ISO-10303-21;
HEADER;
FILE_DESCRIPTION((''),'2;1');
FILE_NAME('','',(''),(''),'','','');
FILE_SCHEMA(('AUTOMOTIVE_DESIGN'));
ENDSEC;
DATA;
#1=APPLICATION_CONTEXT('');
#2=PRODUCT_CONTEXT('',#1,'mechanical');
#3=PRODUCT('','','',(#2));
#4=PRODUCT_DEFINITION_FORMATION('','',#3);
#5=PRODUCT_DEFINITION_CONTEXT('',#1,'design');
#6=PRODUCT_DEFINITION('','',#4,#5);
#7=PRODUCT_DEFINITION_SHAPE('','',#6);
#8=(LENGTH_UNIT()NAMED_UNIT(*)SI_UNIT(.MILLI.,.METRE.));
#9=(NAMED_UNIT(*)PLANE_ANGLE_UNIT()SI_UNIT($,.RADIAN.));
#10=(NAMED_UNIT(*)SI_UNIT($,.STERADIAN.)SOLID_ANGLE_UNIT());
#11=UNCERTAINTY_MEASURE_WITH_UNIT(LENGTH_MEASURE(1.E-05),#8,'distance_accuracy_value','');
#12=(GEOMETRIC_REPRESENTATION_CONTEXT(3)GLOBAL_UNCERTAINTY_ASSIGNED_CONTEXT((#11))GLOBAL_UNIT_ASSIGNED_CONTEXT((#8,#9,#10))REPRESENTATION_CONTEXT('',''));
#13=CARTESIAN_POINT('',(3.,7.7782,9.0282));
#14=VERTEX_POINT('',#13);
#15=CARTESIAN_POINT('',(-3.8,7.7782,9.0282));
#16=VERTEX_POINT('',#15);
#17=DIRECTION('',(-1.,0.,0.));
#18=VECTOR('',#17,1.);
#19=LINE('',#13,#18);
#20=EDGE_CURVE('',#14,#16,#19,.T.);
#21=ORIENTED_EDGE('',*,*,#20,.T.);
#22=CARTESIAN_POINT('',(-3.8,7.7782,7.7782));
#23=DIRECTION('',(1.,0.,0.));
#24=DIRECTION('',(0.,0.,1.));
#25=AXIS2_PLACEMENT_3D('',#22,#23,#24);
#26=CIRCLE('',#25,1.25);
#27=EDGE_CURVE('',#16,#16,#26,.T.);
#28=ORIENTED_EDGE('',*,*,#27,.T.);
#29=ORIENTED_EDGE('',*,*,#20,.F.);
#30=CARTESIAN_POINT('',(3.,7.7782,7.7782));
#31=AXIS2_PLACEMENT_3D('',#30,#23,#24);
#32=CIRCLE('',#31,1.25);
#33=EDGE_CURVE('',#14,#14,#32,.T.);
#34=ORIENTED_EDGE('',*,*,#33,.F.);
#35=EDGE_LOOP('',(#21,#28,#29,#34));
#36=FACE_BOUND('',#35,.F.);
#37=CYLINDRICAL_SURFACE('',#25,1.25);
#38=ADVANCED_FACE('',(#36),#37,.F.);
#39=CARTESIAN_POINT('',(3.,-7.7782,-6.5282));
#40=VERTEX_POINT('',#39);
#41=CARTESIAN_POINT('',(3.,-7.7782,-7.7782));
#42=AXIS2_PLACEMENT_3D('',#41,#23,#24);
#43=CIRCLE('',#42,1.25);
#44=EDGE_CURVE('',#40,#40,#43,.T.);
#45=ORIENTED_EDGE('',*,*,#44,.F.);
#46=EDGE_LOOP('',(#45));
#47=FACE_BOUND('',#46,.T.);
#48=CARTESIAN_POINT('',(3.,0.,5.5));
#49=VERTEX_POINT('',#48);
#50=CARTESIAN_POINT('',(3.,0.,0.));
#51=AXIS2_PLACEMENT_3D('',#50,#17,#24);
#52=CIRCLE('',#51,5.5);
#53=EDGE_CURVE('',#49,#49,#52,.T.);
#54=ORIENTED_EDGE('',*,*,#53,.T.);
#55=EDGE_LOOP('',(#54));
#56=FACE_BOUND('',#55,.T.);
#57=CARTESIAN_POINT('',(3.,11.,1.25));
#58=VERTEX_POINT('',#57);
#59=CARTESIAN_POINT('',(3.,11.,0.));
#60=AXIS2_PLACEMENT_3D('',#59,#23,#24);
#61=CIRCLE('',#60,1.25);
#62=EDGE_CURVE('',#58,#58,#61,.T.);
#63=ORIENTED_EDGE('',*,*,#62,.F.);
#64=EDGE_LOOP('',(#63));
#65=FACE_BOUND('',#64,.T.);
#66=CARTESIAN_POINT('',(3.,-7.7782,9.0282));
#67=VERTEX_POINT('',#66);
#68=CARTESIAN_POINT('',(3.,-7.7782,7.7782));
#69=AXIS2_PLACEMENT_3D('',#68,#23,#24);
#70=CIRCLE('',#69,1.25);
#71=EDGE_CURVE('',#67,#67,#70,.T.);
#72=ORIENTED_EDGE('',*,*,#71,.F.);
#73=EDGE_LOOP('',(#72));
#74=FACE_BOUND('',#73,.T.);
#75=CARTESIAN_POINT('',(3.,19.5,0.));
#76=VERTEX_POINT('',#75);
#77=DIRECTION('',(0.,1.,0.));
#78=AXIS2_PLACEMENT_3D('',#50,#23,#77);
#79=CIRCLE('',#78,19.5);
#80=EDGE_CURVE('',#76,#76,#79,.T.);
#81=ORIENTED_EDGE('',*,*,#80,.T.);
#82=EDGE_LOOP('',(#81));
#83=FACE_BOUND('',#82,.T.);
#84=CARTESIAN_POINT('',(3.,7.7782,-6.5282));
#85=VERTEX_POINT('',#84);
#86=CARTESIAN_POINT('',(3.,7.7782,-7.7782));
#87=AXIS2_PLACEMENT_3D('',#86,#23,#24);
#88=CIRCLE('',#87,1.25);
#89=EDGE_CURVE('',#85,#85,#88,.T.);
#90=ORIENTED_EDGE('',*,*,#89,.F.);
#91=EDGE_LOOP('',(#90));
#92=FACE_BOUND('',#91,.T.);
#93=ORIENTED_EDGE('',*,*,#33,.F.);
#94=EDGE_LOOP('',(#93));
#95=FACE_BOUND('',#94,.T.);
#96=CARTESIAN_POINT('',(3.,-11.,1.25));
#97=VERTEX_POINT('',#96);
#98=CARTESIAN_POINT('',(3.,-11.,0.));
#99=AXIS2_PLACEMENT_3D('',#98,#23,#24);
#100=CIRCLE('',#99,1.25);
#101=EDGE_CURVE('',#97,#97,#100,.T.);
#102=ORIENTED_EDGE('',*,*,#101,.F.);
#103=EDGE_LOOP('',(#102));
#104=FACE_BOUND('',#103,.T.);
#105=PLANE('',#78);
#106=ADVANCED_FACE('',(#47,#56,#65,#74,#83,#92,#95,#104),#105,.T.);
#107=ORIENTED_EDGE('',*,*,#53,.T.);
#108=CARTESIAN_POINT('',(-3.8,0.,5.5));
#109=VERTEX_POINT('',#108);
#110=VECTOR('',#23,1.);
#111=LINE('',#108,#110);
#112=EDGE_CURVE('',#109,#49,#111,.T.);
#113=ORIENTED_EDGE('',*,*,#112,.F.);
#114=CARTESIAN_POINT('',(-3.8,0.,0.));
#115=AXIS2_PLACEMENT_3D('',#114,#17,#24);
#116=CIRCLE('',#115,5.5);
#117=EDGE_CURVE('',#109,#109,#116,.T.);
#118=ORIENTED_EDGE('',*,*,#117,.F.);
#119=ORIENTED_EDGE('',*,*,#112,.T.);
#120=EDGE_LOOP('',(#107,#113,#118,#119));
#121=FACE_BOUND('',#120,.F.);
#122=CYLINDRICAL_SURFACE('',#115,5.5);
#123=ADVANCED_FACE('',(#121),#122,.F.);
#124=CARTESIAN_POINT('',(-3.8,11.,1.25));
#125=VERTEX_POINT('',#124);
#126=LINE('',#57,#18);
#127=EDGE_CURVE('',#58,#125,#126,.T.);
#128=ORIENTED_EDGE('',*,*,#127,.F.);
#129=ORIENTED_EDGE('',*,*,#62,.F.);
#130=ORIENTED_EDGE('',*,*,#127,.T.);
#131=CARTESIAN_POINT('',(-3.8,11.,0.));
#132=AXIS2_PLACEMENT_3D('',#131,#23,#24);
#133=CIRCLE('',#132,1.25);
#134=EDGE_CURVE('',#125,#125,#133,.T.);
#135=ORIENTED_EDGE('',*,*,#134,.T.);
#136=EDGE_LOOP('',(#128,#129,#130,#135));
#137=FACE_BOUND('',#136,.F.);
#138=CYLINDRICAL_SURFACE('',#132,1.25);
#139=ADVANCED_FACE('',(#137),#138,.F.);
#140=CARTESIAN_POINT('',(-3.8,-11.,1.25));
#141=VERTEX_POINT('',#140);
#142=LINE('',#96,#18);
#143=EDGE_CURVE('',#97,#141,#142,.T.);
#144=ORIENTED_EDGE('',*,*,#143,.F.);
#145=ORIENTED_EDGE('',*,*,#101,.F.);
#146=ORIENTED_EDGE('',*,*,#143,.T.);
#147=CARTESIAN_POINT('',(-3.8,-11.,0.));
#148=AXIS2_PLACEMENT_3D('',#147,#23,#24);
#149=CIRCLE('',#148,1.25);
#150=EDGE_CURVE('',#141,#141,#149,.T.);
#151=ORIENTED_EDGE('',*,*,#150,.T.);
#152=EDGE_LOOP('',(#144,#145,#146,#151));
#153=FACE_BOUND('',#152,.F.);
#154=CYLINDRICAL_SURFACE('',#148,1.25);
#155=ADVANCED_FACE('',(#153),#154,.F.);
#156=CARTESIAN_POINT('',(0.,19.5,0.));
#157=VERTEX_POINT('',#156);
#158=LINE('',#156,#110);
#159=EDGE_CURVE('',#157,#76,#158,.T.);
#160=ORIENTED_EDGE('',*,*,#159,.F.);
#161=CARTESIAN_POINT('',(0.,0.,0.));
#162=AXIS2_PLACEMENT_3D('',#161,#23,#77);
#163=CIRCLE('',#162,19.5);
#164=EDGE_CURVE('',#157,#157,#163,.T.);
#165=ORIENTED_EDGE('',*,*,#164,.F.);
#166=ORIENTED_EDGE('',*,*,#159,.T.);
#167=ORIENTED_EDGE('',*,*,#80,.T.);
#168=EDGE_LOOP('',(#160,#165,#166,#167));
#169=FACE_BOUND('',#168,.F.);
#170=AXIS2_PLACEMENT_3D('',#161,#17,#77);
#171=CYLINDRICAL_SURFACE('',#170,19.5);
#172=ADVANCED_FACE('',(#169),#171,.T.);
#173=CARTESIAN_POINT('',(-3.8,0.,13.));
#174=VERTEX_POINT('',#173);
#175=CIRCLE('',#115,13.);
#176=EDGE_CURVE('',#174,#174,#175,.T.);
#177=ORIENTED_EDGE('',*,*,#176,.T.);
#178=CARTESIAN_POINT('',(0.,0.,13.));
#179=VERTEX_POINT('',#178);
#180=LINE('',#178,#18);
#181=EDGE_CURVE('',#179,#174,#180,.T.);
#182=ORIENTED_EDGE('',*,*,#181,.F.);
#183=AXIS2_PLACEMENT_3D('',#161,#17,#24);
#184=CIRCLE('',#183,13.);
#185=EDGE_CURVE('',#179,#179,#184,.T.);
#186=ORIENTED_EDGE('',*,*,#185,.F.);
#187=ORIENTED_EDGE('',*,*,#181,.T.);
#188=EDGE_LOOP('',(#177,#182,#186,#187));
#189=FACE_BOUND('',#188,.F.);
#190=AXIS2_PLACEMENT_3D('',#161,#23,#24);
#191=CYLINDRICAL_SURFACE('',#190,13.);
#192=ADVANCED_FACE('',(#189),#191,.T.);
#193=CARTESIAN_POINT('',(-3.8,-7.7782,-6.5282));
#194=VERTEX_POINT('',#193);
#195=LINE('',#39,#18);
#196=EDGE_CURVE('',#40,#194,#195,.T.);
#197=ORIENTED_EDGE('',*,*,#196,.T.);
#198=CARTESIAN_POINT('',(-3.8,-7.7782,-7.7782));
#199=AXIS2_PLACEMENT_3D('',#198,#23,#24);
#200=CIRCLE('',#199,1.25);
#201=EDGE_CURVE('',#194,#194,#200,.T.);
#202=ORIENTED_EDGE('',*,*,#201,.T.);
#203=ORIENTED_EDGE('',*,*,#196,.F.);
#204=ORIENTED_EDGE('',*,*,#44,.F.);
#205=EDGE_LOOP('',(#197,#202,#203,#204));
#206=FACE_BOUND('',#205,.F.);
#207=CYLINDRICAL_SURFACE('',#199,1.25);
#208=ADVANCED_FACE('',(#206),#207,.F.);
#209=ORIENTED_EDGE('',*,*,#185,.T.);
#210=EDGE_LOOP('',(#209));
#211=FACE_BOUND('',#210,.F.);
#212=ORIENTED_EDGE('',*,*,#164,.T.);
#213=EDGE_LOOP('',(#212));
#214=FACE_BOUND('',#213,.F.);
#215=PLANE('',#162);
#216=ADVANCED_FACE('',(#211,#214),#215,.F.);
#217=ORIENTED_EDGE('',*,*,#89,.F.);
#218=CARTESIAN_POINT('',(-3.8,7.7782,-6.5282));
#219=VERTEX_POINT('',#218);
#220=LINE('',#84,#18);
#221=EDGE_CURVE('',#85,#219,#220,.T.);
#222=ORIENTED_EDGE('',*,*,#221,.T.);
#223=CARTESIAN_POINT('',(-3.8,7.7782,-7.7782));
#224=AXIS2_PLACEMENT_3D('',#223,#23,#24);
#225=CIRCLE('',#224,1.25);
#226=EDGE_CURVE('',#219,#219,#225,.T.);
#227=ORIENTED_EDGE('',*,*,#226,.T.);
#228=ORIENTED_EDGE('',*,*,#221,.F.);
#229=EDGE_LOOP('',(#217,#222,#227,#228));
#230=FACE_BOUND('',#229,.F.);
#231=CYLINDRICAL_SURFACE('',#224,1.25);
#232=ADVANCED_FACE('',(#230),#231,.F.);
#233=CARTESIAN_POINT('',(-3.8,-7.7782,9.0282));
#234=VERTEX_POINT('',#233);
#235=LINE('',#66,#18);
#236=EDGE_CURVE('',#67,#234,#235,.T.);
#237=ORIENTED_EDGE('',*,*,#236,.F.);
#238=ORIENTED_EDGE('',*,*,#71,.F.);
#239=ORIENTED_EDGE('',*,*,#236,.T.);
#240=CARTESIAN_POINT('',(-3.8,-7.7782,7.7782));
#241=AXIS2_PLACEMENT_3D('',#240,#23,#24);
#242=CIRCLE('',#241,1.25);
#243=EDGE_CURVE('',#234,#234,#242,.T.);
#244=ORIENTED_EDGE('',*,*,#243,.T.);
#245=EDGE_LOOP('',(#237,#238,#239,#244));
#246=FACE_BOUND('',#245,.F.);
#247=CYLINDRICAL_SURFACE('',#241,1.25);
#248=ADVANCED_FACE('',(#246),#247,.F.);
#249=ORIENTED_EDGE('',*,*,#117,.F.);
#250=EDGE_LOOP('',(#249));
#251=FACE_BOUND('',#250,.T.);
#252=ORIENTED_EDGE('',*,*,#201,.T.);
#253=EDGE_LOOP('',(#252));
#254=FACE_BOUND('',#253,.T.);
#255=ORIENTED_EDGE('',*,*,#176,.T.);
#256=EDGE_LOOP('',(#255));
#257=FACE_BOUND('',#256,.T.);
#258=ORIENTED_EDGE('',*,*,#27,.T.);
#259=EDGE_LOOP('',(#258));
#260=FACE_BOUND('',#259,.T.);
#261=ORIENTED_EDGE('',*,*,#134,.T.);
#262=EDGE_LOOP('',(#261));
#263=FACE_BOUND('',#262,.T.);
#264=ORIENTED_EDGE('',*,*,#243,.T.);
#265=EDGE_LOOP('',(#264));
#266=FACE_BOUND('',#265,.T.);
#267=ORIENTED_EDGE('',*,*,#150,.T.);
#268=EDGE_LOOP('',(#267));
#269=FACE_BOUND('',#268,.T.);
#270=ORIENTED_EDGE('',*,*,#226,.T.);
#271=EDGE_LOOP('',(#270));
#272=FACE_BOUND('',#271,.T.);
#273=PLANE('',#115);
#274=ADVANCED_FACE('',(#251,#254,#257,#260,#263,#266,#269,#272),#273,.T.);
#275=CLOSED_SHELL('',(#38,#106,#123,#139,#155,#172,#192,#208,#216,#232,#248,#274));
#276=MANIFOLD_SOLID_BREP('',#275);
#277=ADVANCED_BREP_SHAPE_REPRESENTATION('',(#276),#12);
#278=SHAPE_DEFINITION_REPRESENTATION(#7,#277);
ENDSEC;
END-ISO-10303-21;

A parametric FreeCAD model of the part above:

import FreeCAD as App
import Part
import Sketcher

V = App.Vector

doc = App.newDocument("Part")
body = doc.addObject("PartDesign::Body", "Body")

# Sketch on YZ plane
sketch1 = body.newObject("Sketcher::SketchObject", "Sketch")
sketch1.AttachmentSupport = (doc.getObject("YZ_Plane"), [""])
sketch1.MapMode = "FlatFace"
sketch1.addGeometry(Part.Circle(V(0, 0, 0), V(0, 0, 1), 20), False)
sketch1.addConstraint([
    Sketcher.Constraint("Coincident", 0, 3, -1, 1),
    Sketcher.Constraint("Diameter", 0, 39.0),
])
pad1 = body.newObject("PartDesign::Pad", "Pad")
pad1.Profile = sketch1
pad1.Length = 3

# Sketch on YZ plane
sketch2 = body.newObject("Sketcher::SketchObject", "Sketch001")
sketch2.AttachmentSupport = (doc.getObject("YZ_Plane"), [""])
sketch2.MapMode = "FlatFace"
sketch2.addGeometry([
    Part.Circle(V(7.8, -7.8, 0), V(0, 0, 1), 1.2),  # 0
    Part.Circle(V(11, 0, 0), V(0, 0, 1), 1.2),  # 1
    Part.Circle(V(7.8, 7.8, 0), V(0, 0, 1), 1.2),  # 2
    Part.Circle(V(-7.8, 7.8, 0), V(0, 0, 1), 1.2),  # 3
    Part.Circle(V(-11, 0, 0), V(0, 0, 1), 1.2),  # 4
    Part.Circle(V(-7.8, -7.8, 0), V(0, 0, 1), 1.2),  # 5
], False)
sketch2.addConstraint([
    Sketcher.Constraint("Equal", 0, 1),
    Sketcher.Constraint("Equal", 1, 2),
    Sketcher.Constraint("Equal", 2, 3),
    Sketcher.Constraint("Equal", 3, 4),
    Sketcher.Constraint("Equal", 4, 5),
    Sketcher.Constraint("Symmetric", 0, 3, 3, 3, -1, 1),
    Sketcher.Constraint("Symmetric", 1, 3, 4, 3, -1, 1),
    Sketcher.Constraint("Symmetric", 2, 3, 5, 3, -1, 1),
    Sketcher.Constraint("Symmetric", 2, 3, 3, 3, -2),
    Sketcher.Constraint("PointOnObject", 1, 3, -1),
    Sketcher.Constraint("Diameter", 0, 2.5),
    Sketcher.Constraint("DistanceX", -1, 1, 1, 3, 11.0),
    Sketcher.Constraint("DistanceX", -1, 1, 0, 3, 7.7782),
    Sketcher.Constraint("DistanceY", 0, 3, -1, 1, 7.7782),
])
doc.recompute()
hole = body.newObject("PartDesign::Hole", "Hole")
hole.Profile = sketch2
hole.ThreadType = "None"
hole.Diameter = 2.5
hole.DepthType = "ThroughAll"
hole.Reversed = True

# Sketch on YZ plane
sketch3 = body.newObject("Sketcher::SketchObject", "Sketch002")
sketch3.AttachmentSupport = (doc.getObject("YZ_Plane"), [""])
sketch3.MapMode = "FlatFace"
sketch3.addGeometry(Part.Circle(V(0, 0, 0), V(0, 0, 1), 13), False)
sketch3.addConstraint([
    Sketcher.Constraint("Coincident", 0, 3, -1, 1),
    Sketcher.Constraint("Diameter", 0, 26.0),
])
pad2 = body.newObject("PartDesign::Pad", "Pad001")
pad2.Profile = sketch3
pad2.Length = 3.8
pad2.Reversed = True

# Sketch on YZ plane
sketch4 = body.newObject("Sketcher::SketchObject", "Sketch003")
sketch4.AttachmentSupport = (doc.getObject("YZ_Plane"), [""])
sketch4.MapMode = "FlatFace"
sketch4.AttachmentOffset = App.Placement(V(0, 0, -3.8), App.Rotation())
sketch4.addGeometry([
    Part.Circle(V(11, 0, 0), V(0, 0, 1), 1.2),  # 0
    Part.Circle(V(7.8, -7.8, 0), V(0, 0, 1), 1.2),  # 1
    Part.Circle(V(7.8, 7.8, 0), V(0, 0, 1), 1.2),  # 2
    Part.Circle(V(-7.8, 7.8, 0), V(0, 0, 1), 1.2),  # 3
    Part.Circle(V(-11, 0, 0), V(0, 0, 1), 1.2),  # 4
    Part.Circle(V(-7.8, -7.8, 0), V(0, 0, 1), 1.2),  # 5
], False)
sketch4.addConstraint([
    Sketcher.Constraint("Equal", 0, 1),
    Sketcher.Constraint("Equal", 1, 2),
    Sketcher.Constraint("Equal", 2, 3),
    Sketcher.Constraint("Equal", 3, 4),
    Sketcher.Constraint("Equal", 4, 5),
    Sketcher.Constraint("Symmetric", 1, 3, 3, 3, -1, 1),
    Sketcher.Constraint("Symmetric", 0, 3, 4, 3, -1, 1),
    Sketcher.Constraint("Symmetric", 2, 3, 5, 3, -1, 1),
    Sketcher.Constraint("Symmetric", 2, 3, 3, 3, -2),
    Sketcher.Constraint("PointOnObject", 0, 3, -1),
    Sketcher.Constraint("Diameter", 0, 2.5),
    Sketcher.Constraint("DistanceX", -1, 1, 0, 3, 11.0),
    Sketcher.Constraint("DistanceX", -1, 1, 1, 3, 7.7782),
    Sketcher.Constraint("DistanceY", 1, 3, -1, 1, 7.7782),
])
doc.recompute()
hole2 = body.newObject("PartDesign::Hole", "Hole001")
hole2.Profile = sketch4
hole2.ThreadType = "None"
hole2.Diameter = 2.5
hole2.DepthType = "ThroughAll"
hole2.Reversed = True

# Sketch on YZ plane
sketch5 = body.newObject("Sketcher::SketchObject", "Sketch004")
sketch5.AttachmentSupport = (doc.getObject("YZ_Plane"), [""])
sketch5.MapMode = "FlatFace"
sketch5.AttachmentOffset = App.Placement(V(0, 0, -3.8), App.Rotation())
sketch5.addGeometry(Part.Circle(V(0, 0, 0), V(0, 0, 1), 6), False)
sketch5.addConstraint([
    Sketcher.Constraint("Coincident", 0, 3, -1, 1),
    Sketcher.Constraint("Diameter", 0, 11.0),
])
pocket1 = body.newObject("PartDesign::Pocket", "Pocket")
pocket1.Profile = sketch5
pocket1.Length = 10
pocket1.Reversed = True

doc.recompute()
